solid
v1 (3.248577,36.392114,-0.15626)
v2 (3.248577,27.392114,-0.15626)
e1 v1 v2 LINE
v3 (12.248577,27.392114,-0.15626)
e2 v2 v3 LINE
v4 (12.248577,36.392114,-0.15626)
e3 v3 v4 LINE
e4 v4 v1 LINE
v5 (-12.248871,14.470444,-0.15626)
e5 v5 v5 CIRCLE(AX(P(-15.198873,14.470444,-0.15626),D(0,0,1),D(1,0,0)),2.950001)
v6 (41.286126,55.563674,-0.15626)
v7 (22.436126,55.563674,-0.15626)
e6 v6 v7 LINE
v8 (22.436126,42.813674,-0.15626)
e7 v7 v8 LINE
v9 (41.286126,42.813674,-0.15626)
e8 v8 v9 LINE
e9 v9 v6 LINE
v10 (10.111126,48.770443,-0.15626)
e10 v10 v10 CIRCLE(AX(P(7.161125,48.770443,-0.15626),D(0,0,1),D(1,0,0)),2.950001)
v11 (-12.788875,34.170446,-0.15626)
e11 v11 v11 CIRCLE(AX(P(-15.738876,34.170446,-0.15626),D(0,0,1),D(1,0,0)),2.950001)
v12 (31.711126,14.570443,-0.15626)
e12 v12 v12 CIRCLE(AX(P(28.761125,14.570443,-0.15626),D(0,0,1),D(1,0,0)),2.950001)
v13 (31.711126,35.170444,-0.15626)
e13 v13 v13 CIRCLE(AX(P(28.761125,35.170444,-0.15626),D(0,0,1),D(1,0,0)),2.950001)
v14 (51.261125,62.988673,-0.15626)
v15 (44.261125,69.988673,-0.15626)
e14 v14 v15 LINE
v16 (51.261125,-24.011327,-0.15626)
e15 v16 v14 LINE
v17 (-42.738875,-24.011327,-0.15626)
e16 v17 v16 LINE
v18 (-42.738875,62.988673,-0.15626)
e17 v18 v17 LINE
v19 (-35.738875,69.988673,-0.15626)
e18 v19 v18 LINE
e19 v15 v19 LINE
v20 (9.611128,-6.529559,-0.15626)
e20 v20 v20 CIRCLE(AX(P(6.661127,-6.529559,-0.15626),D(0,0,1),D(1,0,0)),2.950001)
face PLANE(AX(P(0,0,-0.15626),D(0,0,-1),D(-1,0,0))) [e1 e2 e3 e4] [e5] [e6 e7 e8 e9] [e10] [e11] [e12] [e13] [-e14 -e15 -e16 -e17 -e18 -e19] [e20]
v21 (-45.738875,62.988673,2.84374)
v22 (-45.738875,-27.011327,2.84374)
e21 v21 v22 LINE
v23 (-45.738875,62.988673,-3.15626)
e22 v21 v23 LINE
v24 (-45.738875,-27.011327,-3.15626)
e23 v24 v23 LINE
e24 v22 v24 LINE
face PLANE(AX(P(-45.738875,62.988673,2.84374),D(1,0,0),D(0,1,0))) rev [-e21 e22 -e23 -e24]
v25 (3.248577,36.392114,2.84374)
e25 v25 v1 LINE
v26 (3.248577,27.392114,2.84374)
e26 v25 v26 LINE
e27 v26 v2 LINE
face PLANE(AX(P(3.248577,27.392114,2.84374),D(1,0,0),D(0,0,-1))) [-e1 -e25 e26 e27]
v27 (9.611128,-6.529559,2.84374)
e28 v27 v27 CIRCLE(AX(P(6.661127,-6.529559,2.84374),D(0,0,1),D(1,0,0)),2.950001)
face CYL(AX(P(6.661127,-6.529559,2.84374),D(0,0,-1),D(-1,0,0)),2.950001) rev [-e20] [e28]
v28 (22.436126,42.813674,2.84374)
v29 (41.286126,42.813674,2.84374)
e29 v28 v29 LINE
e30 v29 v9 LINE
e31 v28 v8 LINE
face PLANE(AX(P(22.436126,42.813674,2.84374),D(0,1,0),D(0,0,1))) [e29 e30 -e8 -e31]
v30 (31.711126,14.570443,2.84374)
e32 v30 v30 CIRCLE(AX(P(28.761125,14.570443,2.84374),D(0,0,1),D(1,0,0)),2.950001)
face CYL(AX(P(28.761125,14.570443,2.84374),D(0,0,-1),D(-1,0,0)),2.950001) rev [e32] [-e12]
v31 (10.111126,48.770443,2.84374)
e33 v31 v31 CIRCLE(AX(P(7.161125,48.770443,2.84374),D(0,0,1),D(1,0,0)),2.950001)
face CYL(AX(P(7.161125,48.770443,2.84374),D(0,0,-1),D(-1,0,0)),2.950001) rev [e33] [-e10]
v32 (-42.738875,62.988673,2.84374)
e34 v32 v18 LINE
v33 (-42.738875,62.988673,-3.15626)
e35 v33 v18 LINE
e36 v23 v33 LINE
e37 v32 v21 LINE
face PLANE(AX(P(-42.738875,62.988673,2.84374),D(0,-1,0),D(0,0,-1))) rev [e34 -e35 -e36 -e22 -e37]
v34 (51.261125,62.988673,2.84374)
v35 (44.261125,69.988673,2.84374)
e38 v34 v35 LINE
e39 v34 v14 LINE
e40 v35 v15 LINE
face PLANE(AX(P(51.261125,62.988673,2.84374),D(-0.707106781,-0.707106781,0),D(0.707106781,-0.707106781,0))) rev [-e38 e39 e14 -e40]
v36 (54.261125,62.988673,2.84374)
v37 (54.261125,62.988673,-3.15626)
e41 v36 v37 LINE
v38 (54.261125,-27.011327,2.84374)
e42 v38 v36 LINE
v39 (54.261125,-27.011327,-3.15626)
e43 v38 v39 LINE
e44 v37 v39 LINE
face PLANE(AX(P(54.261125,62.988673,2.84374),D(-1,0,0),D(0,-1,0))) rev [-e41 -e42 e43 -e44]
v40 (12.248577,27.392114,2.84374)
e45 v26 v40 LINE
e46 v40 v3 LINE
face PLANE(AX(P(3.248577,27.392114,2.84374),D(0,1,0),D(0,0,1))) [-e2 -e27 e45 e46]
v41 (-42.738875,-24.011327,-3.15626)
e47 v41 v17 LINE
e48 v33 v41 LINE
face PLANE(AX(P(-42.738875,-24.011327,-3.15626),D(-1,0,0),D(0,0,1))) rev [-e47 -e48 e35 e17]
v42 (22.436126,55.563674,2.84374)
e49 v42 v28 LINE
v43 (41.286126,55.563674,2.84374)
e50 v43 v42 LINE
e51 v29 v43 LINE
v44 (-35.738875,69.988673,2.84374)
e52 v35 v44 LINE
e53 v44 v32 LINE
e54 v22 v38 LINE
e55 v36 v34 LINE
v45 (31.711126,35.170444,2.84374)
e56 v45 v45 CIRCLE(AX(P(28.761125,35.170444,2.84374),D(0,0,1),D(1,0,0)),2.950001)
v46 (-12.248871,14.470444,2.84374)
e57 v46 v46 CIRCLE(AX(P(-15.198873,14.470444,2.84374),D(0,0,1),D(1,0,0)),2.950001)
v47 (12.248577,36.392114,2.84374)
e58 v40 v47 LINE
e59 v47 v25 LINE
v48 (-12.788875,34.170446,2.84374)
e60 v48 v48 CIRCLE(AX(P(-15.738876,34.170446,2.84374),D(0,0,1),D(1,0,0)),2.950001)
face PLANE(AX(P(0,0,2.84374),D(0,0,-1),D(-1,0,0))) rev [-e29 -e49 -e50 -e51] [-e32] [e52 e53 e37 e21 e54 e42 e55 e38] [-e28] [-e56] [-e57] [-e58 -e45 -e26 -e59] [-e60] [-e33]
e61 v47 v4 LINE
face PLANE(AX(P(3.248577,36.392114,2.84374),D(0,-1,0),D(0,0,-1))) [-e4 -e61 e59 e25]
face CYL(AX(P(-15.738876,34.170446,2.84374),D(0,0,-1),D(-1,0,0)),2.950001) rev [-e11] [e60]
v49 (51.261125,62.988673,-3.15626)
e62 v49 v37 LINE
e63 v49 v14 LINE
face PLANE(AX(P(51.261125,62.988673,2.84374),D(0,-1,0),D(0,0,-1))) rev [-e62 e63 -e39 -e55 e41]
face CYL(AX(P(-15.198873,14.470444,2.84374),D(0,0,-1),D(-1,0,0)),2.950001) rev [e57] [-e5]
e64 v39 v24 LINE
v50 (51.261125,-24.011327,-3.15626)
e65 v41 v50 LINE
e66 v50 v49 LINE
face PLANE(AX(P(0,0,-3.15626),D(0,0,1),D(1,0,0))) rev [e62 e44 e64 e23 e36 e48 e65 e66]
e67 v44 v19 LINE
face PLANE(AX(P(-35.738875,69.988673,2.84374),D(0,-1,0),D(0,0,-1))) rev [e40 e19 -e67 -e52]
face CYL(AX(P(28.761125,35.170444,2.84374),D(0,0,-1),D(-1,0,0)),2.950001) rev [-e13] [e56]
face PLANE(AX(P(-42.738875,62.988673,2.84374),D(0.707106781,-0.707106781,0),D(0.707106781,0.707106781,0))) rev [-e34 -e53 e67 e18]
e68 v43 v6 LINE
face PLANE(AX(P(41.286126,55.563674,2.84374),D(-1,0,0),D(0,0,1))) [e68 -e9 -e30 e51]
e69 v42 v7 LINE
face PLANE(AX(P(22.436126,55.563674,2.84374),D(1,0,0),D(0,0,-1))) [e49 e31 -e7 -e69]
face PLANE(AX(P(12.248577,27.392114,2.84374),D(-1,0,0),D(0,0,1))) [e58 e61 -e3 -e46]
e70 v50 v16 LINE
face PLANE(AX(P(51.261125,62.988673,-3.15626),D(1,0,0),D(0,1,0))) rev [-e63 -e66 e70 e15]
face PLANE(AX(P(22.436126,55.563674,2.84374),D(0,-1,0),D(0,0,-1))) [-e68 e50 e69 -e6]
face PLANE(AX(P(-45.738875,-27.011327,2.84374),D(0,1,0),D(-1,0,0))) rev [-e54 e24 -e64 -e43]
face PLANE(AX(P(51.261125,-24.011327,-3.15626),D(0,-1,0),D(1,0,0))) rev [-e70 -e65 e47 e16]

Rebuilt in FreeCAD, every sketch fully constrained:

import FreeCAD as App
import Part
import Sketcher

doc = App.newDocument("Part")
body = doc.addObject("PartDesign::Body", "Body")

sketch1 = doc.addObject("Sketcher::SketchObject", "Sketch")
body.addObject(sketch1)
sketch1.AttachmentSupport = (doc.XY_Plane, [""])
sketch1.MapMode = "FlatFace"
sketch1.AttachmentOffset = App.Placement(App.Vector(0, 0, -0.15626), App.Rotation())
sketch1.addGeometry([
    Part.LineSegment(App.Vector(51.3, 63, 0), App.Vector(44.3, 70, 0)),
    Part.LineSegment(App.Vector(44.3, 70, 0), App.Vector(-35.7, 70, 0)),
    Part.LineSegment(App.Vector(-35.7, 70, 0), App.Vector(-42.7, 63, 0)),
    Part.LineSegment(App.Vector(-42.7, 63, 0), App.Vector(-45.7, 63, 0)),
    Part.LineSegment(App.Vector(-45.7, 63, 0), App.Vector(-45.7, -27, 0)),
    Part.LineSegment(App.Vector(-45.7, -27, 0), App.Vector(54.3, -27, 0)),
    Part.LineSegment(App.Vector(54.3, -27, 0), App.Vector(54.3, 63, 0)),
    Part.LineSegment(App.Vector(54.3, 63, 0), App.Vector(51.3, 63, 0)),
    Part.Circle(App.Vector(6.7, -6.5, 0), App.Vector(0, 0, 1), 3),
    Part.Circle(App.Vector(-15.2, 14.5, 0), App.Vector(0, 0, 1), 3),
    Part.Circle(App.Vector(28.8, 14.6, 0), App.Vector(0, 0, 1), 3),
    Part.Circle(App.Vector(-15.7, 34.2, 0), App.Vector(0, 0, 1), 3),
    Part.LineSegment(App.Vector(12.2, 27.4, 0), App.Vector(3.2, 27.4, 0)),
    Part.LineSegment(App.Vector(3.2, 27.4, 0), App.Vector(3.2, 36.4, 0)),
    Part.LineSegment(App.Vector(3.2, 36.4, 0), App.Vector(12.2, 36.4, 0)),
    Part.LineSegment(App.Vector(12.2, 36.4, 0), App.Vector(12.2, 27.4, 0)),
    Part.Circle(App.Vector(7.2, 48.8, 0), App.Vector(0, 0, 1), 3),
    Part.Circle(App.Vector(28.8, 35.2, 0), App.Vector(0, 0, 1), 3),
    Part.LineSegment(App.Vector(41.3, 42.8, 0), App.Vector(22.4, 42.8, 0)),
    Part.LineSegment(App.Vector(22.4, 42.8, 0), App.Vector(22.4, 55.6, 0)),
    Part.LineSegment(App.Vector(22.4, 55.6, 0), App.Vector(41.3, 55.6, 0)),
    Part.LineSegment(App.Vector(41.3, 55.6, 0), App.Vector(41.3, 42.8, 0)),
], False)
sketch1.addConstraint([
    Sketcher.Constraint("Coincident", 0, 2, 1, 1),
    Sketcher.Constraint("Coincident", 1, 2, 2, 1),
    Sketcher.Constraint("Coincident", 2, 2, 3, 1),
    Sketcher.Constraint("Coincident", 3, 2, 4, 1),
    Sketcher.Constraint("Coincident", 4, 2, 5, 1),
    Sketcher.Constraint("Coincident", 5, 2, 6, 1),
    Sketcher.Constraint("Coincident", 6, 2, 7, 1),
    Sketcher.Constraint("Coincident", 7, 2, 0, 1),
    Sketcher.Constraint("Coincident", 12, 2, 13, 1),
    Sketcher.Constraint("Coincident", 13, 2, 14, 1),
    Sketcher.Constraint("Coincident", 14, 2, 15, 1),
    Sketcher.Constraint("Coincident", 15, 2, 12, 1),
    Sketcher.Constraint("Coincident", 18, 2, 19, 1),
    Sketcher.Constraint("Coincident", 19, 2, 20, 1),
    Sketcher.Constraint("Coincident", 20, 2, 21, 1),
    Sketcher.Constraint("Coincident", 21, 2, 18, 1),
    Sketcher.Constraint("Horizontal", 1),
    Sketcher.Constraint("Horizontal", 3),
    Sketcher.Constraint("Vertical", 4),
    Sketcher.Constraint("Horizontal", 5),
    Sketcher.Constraint("Vertical", 6),
    Sketcher.Constraint("Horizontal", 7),
    Sketcher.Constraint("Horizontal", 12),
    Sketcher.Constraint("Vertical", 13),
    Sketcher.Constraint("Horizontal", 14),
    Sketcher.Constraint("Vertical", 15),
    Sketcher.Constraint("Horizontal", 18),
    Sketcher.Constraint("Vertical", 19),
    Sketcher.Constraint("Horizontal", 20),
    Sketcher.Constraint("Vertical", 21),
    Sketcher.Constraint("Equal", 8, 9),
    Sketcher.Constraint("Equal", 9, 10),
    Sketcher.Constraint("Equal", 10, 11),
    Sketcher.Constraint("Equal", 11, 16),
    Sketcher.Constraint("Equal", 16, 17),
    Sketcher.Constraint("Perpendicular", 0, 2),
    Sketcher.Constraint("Horizontal", 3, 2, 6, 2),
    Sketcher.Constraint("Vertical", 10, 3, 17, 3),
    Sketcher.Constraint("Equal", 3, 7),
    Sketcher.Constraint("Equal", 14, 13),
    Sketcher.Constraint("Equal", 0, 2),
    Sketcher.Constraint("DistanceX", 1, 2, 1, 1, 80.0),
    Sketcher.Constraint("DistanceX", 3, 2, 3, 1, 3.0),
    Sketcher.Constraint("DistanceX", 5, 1, 5, 2, 100.0),
    Sketcher.Constraint("DistanceX", 12, 2, 12, 1, 9.0),
    Sketcher.Constraint("DistanceY", 4, 2, 4, 1, 90.0),
    Sketcher.Constraint("DistanceY", 11, 3, 17, 3, 0.999998),
    Sketcher.Constraint("DistanceX", 11, 3, 0, 2, 60.000001),
    Sketcher.Constraint("DistanceX", 18, 2, 18, 1, 18.85),
    Sketcher.Constraint("DistanceY", 19, 1, 19, 2, 12.75),
    Sketcher.Constraint("DistanceY", 9, 3, 10, 3, 0.1),
    Sketcher.Constraint("DistanceY", 9, 3, 11, 3, 19.700002),
    Sketcher.Constraint("DistanceX", 11, 3, 10, 3, 44.500001),
    Sketcher.Constraint("DistanceX", 11, 3, 16, 3, 22.9),
    Sketcher.Constraint("DistanceY", 10, 3, 16, 3, 34.2),
    Sketcher.Constraint("DistanceX", 4, 2, 8, 3, 52.400002),
    Sketcher.Constraint("DistanceX", 9, 3, 8, 3, 21.86),
    Sketcher.Constraint("Diameter", 8, 5.900002),
    Sketcher.Constraint("DistanceX", 18, 2, 17, 3, 6.324999),
    Sketcher.Constraint("DistanceY", 19, 2, 0, 2, 14.424999),
    Sketcher.Constraint("DistanceY", 8, 3, -1, 1, 6.529559),
    Sketcher.Constraint("DistanceY", 17, 3, 0, 2, 34.818229),
    Sketcher.Constraint("DistanceY", 12, 2, 11, 3, 6.778332),
    Sketcher.Constraint("DistanceX", 9, 3, 12, 2, 18.447449),
    Sketcher.Constraint("DistanceX", -1, 1, 8, 3, 6.661127),
    Sketcher.Constraint("DistanceY", -1, 1, 9, 3, 14.470444),
])
pad1 = doc.addObject("PartDesign::Pad", "Pad")
body.addObject(pad1)
pad1.Profile = sketch1
pad1.Length = 3

sketch2 = doc.addObject("Sketcher::SketchObject", "Sketch001")
body.addObject(sketch2)
sketch2.AttachmentSupport = (doc.XY_Plane, [""])
sketch2.MapMode = "FlatFace"
sketch2.AttachmentOffset = App.Placement(App.Vector(0, 0, -0.15626), App.Rotation())
sketch2.addGeometry([
    Part.LineSegment(App.Vector(51.3, 63, 0), App.Vector(54.3, 63, 0)),
    Part.LineSegment(App.Vector(54.3, 63, 0), App.Vector(54.3, -27, 0)),
    Part.LineSegment(App.Vector(54.3, -27, 0), App.Vector(-45.7, -27, 0)),
    Part.LineSegment(App.Vector(-45.7, -27, 0), App.Vector(-45.7, 63, 0)),
    Part.LineSegment(App.Vector(-45.7, 63, 0), App.Vector(-42.7, 63, 0)),
    Part.LineSegment(App.Vector(-42.7, 63, 0), App.Vector(-42.7, -24, 0)),
    Part.LineSegment(App.Vector(-42.7, -24, 0), App.Vector(51.3, -24, 0)),
    Part.LineSegment(App.Vector(51.3, -24, 0), App.Vector(51.3, 63, 0)),
], False)
sketch2.addConstraint([
    Sketcher.Constraint("Coincident", 0, 2, 1, 1),
    Sketcher.Constraint("Coincident", 1, 2, 2, 1),
    Sketcher.Constraint("Coincident", 2, 2, 3, 1),
    Sketcher.Constraint("Coincident", 3, 2, 4, 1),
    Sketcher.Constraint("Coincident", 4, 2, 5, 1),
    Sketcher.Constraint("Coincident", 5, 2, 6, 1),
    Sketcher.Constraint("Coincident", 6, 2, 7, 1),
    Sketcher.Constraint("Coincident", 7, 2, 0, 1),
    Sketcher.Constraint("Horizontal", 0),
    Sketcher.Constraint("Vertical", 1),
    Sketcher.Constraint("Horizontal", 2),
    Sketcher.Constraint("Vertical", 3),
    Sketcher.Constraint("Horizontal", 4),
    Sketcher.Constraint("Vertical", 5),
    Sketcher.Constraint("Horizontal", 6),
    Sketcher.Constraint("Vertical", 7),
    Sketcher.Constraint("Horizontal", 0, 2, 3, 2),
    Sketcher.Constraint("Equal", 0, 4),
    Sketcher.Constraint("DistanceX", 0, 1, 0, 2, 3.0),
    Sketcher.Constraint("DistanceX", 2, 2, 2, 1, 100.0),
    Sketcher.Constraint("DistanceY", 1, 2, 1, 1, 90.0),
    Sketcher.Constraint("DistanceY", 5, 2, 5, 1, 87.0),
    Sketcher.Constraint("DistanceX", -1, 1, 0, 2, 54.261125),
    Sketcher.Constraint("DistanceY", -1, 1, 0, 2, 62.988673),
])
pad2 = doc.addObject("PartDesign::Pad", "Pad001")
body.addObject(pad2)
pad2.Profile = sketch2
pad2.Length = 3
pad2.Reversed = True

doc.recompute()
